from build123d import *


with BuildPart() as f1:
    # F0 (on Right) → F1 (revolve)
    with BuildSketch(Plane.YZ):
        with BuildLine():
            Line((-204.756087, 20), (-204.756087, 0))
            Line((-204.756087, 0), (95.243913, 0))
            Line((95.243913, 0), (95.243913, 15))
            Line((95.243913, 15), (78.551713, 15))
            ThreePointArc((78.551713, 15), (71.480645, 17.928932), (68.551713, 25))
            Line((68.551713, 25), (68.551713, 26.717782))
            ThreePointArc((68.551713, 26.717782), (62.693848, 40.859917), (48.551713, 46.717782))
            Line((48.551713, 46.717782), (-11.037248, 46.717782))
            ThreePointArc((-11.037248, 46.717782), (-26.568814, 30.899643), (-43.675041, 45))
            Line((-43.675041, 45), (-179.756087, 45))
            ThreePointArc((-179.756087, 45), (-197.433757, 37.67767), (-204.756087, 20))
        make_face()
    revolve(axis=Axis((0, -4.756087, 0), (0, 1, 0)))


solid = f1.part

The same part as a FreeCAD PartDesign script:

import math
import FreeCAD as App
import Part
import Sketcher

V = App.Vector
Q = App.Units.Quantity

doc = App.newDocument("Part")
body = doc.addObject("PartDesign::Body", "Body")

# Sketch on YZ plane
sketch1 = doc.addObject("Sketcher::SketchObject", "Sketch")
body.addObject(sketch1)
sketch1.AttachmentSupport = (doc.YZ_Plane, [""])
sketch1.MapMode = "FlatFace"
sketch1.addGeometry([
    Part.LineSegment(V(-204.756087, 20, 0), V(-204.756087, 0, 0)),  # 0
    Part.LineSegment(V(-204.756087, 0, 0), V(95.243913, 0, 0)),  # 1
    Part.LineSegment(V(95.243913, 0, 0), V(95.243913, 15, 0)),  # 2
    Part.LineSegment(V(95.243913, 15, 0), V(78.551713, 15, 0)),  # 3
    Part.ArcOfCircle(Part.Circle(V(78.551712, 24.999999, 0), V(0, 0, 1), 9.999999), math.radians(179.999996), math.radians(270.000004)),  # 4
    Part.LineSegment(V(68.551713, 25, 0), V(68.551713, 26.717782, 0)),  # 5
    Part.ArcOfCircle(Part.Circle(V(48.551711, 26.71778, 0), V(0, 0, 1), 20.000002), math.radians(0.000006), math.radians(89.999994)),  # 6
    Part.LineSegment(V(48.551713, 46.717782, 0), V(-11.037248, 46.717782, 0)),  # 7
    Part.ArcOfCircle(Part.Circle(V(-27.430957, 47.280329, 0), V(0, 0, 1), 16.403358), math.radians(-172.009091), math.radians(-1.965322)),  # 8
    Part.LineSegment(V(-43.675041, 45, 0), V(-179.756087, 45, 0)),  # 9
    Part.ArcOfCircle(Part.Circle(V(-179.756089, 20.000002, 0), V(0, 0, 1), 24.999998), math.radians(89.999996), math.radians(180.000004)),  # 10
], False)
sketch1.addConstraint([
    Sketcher.Constraint("Coincident", 0, 2, 1, 1),
    Sketcher.Constraint("Coincident", 1, 2, 2, 1),
    Sketcher.Constraint("Coincident", 2, 2, 3, 1),
    Sketcher.Constraint("Tangent", 3, 2, 4, 2),
    Sketcher.Constraint("Tangent", 4, 1, 5, 1),
    Sketcher.Constraint("Tangent", 5, 2, 6, 1),
    Sketcher.Constraint("Tangent", 6, 2, 7, 1),
    Sketcher.Constraint("Coincident", 7, 2, 8, 2),
    Sketcher.Constraint("Coincident", 8, 1, 9, 1),
    Sketcher.Constraint("Tangent", 9, 2, 10, 1),
    Sketcher.Constraint("Tangent", 10, 2, 0, 1),
    Sketcher.Constraint("Vertical", 0),
    Sketcher.Constraint("Horizontal", 1),
    Sketcher.Constraint("Vertical", 2),
    Sketcher.Constraint("Horizontal", 3),
    Sketcher.Constraint("Vertical", 5),
    Sketcher.Constraint("Horizontal", 7),
    Sketcher.Constraint("Horizontal", 9),
    Sketcher.Constraint("PointOnObject", 0, 2, -1),
    Sketcher.Constraint("Radius", 4, Q("9.999999 mm")),
    Sketcher.Constraint("Radius", 10, Q("24.999998 mm")),
    Sketcher.Constraint("DistanceX", 1, 1, 1, 2, Q("300 mm")),
    Sketcher.Constraint("DistanceY", 0, 2, 0, 1, Q("20 mm")),
    Sketcher.Constraint("DistanceY", 2, 1, 2, 2, Q("15 mm")),
    Sketcher.Constraint("DistanceX", 6, 3, 4, 3, Q("30.000001 mm")),
    Sketcher.Constraint("Radius", 8, Q("16.403358 mm")),
    Sketcher.Constraint("DistanceX", 3, 2, 3, 1, Q("16.6922 mm")),
    Sketcher.Constraint("DistanceX", 7, 2, 7, 1, Q("59.588961 mm")),
    Sketcher.Constraint("DistanceY", 5, 1, 5, 2, Q("1.717782 mm")),
    Sketcher.Constraint("DistanceX", 9, 2, 9, 1, Q("136.081046 mm")),
    Sketcher.Constraint("DistanceX", -1, 1, 6, 3, Q("48.551711 mm")),
])
revolution = doc.addObject("PartDesign::Revolution", "Revolution")
body.addObject(revolution)
revolution.Profile = sketch1
revolution.ReferenceAxis = (sketch1, ["H_Axis"])
revolution.Angle = 360

doc.recompute()
